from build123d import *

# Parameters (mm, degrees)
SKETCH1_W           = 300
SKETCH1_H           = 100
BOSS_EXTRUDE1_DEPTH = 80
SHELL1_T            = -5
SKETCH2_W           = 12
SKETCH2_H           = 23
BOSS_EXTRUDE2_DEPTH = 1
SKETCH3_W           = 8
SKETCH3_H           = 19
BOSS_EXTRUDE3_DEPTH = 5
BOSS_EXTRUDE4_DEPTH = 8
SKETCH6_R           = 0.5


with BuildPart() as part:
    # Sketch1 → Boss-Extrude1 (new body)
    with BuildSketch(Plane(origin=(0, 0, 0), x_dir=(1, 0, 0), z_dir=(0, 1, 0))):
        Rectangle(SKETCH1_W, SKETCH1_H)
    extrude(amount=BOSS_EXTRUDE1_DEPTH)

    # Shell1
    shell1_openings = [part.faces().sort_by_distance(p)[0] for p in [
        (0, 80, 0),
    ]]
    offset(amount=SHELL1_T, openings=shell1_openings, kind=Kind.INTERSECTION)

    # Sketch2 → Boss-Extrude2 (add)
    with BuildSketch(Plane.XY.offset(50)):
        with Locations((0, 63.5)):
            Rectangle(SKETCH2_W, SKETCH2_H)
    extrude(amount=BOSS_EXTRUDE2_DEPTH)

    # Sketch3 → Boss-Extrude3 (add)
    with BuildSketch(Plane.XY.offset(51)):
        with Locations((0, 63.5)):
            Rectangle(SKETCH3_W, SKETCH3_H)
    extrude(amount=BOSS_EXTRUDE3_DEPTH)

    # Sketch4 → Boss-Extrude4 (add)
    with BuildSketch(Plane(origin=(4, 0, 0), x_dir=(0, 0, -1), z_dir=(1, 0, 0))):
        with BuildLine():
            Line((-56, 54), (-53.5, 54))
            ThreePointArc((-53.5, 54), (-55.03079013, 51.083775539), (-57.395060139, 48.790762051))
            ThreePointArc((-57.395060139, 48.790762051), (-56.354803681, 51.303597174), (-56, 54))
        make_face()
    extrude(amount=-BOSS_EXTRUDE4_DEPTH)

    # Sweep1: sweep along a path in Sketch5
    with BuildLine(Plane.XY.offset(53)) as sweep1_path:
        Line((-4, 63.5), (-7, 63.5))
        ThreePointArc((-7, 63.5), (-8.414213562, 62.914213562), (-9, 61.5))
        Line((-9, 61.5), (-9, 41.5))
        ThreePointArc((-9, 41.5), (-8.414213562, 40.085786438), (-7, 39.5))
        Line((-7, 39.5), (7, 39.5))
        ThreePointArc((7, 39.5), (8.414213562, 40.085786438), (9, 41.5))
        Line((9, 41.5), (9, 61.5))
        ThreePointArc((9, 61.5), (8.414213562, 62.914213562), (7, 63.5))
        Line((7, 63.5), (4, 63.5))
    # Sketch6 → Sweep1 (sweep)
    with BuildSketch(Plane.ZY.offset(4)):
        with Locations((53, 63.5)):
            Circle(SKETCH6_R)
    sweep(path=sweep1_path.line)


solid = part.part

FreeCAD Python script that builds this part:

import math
import FreeCAD as App
import Part
import Sketcher
from FreeCAD import Vector
Q = App.Units.Quantity


def faces_at(feature, points):
    """Names of the faces that lie closest to the given points."""
    faces = feature.Shape.Faces
    near = lambda p: min(range(len(faces)), key=lambda i: faces[i].distToShape(Part.Vertex(*p))[0])
    return sorted({f"Face{near(p) + 1}" for p in points})

doc = App.newDocument("Part")
params = doc.addObject("Spreadsheet::Sheet", "Params")
for row, (alias, value) in enumerate([
    ("sketch1_width", "300 mm"),
    ("sketch1_height", "100 mm"),
    ("pad1_length", "80 mm"),
    ("thickness_wall", "5 mm"),
    ("sketch2_width", "12 mm"),
    ("sketch2_height", "23 mm"),
    ("pad2_length", "1 mm"),
    ("sketch3_width", "8 mm"),
    ("sketch3_height", "19 mm"),
    ("pad3_length", "5 mm"),
    ("sketch4_height", "2.5 mm"),
    ("pad4_length", "8 mm"),
    ("sketch5_diameter", "1 mm"),
    ("sketch6_radius", "2 mm"),
    ("sketch6_width", "3 mm"),
    ("sketch6_width2", "14 mm"),
    ("sketch6_height", "20 mm"),
], start=1):
    params.set(f"A{row}", alias)
    params.set(f"B{row}", "=" + value)
    params.setAlias(f"B{row}", alias)

body = doc.addObject("PartDesign::Body", "Body")

# Sketch on XZ plane
sketch1 = body.newObject("Sketcher::SketchObject", "Sketch")
sketch1.AttachmentSupport = (doc.getObject("XZ_Plane"), [""])
sketch1.MapMode = "FlatFace"
sketch1.addGeometry([
    Part.LineSegment(Vector(-150, -50, 0), Vector(-150, 50, 0)),
    Part.LineSegment(Vector(-150, 50, 0), Vector(150, 50, 0)),
    Part.LineSegment(Vector(150, 50, 0), Vector(150, -50, 0)),
    Part.LineSegment(Vector(150, -50, 0), Vector(-150, -50, 0)),
], False)
sketch1.addConstraint([
    Sketcher.Constraint("Coincident", 0, 2, 1, 1),
    Sketcher.Constraint("Coincident", 1, 2, 2, 1),
    Sketcher.Constraint("Coincident", 2, 2, 3, 1),
    Sketcher.Constraint("Coincident", 3, 2, 0, 1),
    Sketcher.Constraint("Vertical", 0),
    Sketcher.Constraint("Horizontal", 1),
    Sketcher.Constraint("Vertical", 2),
    Sketcher.Constraint("Horizontal", 3),
    Sketcher.Constraint("Symmetric", 0, 2, 2, 2, -1, 1),
    Sketcher.Constraint("DistanceX", 1, 1, 1, 2, Q("300 mm")),
    Sketcher.Constraint("DistanceY", 0, 1, 0, 2, Q("100 mm")),
])
sketch1.setExpression("Constraints[9]", "Params.sketch1_width")
sketch1.setExpression("Constraints[10]", "Params.sketch1_height")
pad1 = body.newObject("PartDesign::Pad", "Pad")
pad1.Profile = sketch1
pad1.setExpression("Length", "Params.pad1_length")
pad1.Reversed = True
doc.recompute()

thickness = body.newObject("PartDesign::Thickness", "Thickness")
thickness.Base = (pad1, faces_at(pad1, [(0, 80, 0)]))
thickness.setExpression("Value", "Params.thickness_wall")
thickness.Reversed = True
thickness.Join = "Intersection"

# Sketch on XY plane
sketch2 = body.newObject("Sketcher::SketchObject", "Sketch001")
sketch2.AttachmentSupport = (doc.getObject("XY_Plane"), [""])
sketch2.MapMode = "FlatFace"
sketch2.AttachmentOffset = App.Placement(Vector(0, 0, 50), App.Rotation())
sketch2.addGeometry([
    Part.LineSegment(Vector(-6, 75, 0), Vector(-6, 52, 0)),
    Part.LineSegment(Vector(-6, 52, 0), Vector(6, 52, 0)),
    Part.LineSegment(Vector(6, 52, 0), Vector(6, 75, 0)),
    Part.LineSegment(Vector(6, 75, 0), Vector(-6, 75, 0)),
], False)
sketch2.addConstraint([
    Sketcher.Constraint("Coincident", 0, 2, 1, 1),
    Sketcher.Constraint("Coincident", 1, 2, 2, 1),
    Sketcher.Constraint("Coincident", 2, 2, 3, 1),
    Sketcher.Constraint("Coincident", 3, 2, 0, 1),
    Sketcher.Constraint("Vertical", 0),
    Sketcher.Constraint("Horizontal", 1),
    Sketcher.Constraint("Vertical", 2),
    Sketcher.Constraint("Horizontal", 3),
    Sketcher.Constraint("DistanceX", 1, 1, 1, 2, Q("12 mm")),
    Sketcher.Constraint("DistanceY", 0, 2, 0, 1, Q("23 mm")),
    Sketcher.Constraint("DistanceX", 0, 2, -1, 1, Q("6 mm")),
    Sketcher.Constraint("DistanceY", -1, 1, 0, 2, Q("52 mm")),
])
sketch2.setExpression("Constraints[8]", "Params.sketch2_width")
sketch2.setExpression("Constraints[9]", "Params.sketch2_height")
pad2 = body.newObject("PartDesign::Pad", "Pad001")
pad2.Profile = sketch2
pad2.setExpression("Length", "Params.pad2_length")

# Sketch on XY plane
sketch3 = body.newObject("Sketcher::SketchObject", "Sketch002")
sketch3.AttachmentSupport = (doc.getObject("XY_Plane"), [""])
sketch3.MapMode = "FlatFace"
sketch3.AttachmentOffset = App.Placement(Vector(0, 0, 51), App.Rotation())
sketch3.addGeometry([
    Part.LineSegment(Vector(-4, 73, 0), Vector(-4, 54, 0)),
    Part.LineSegment(Vector(-4, 54, 0), Vector(4, 54, 0)),
    Part.LineSegment(Vector(4, 54, 0), Vector(4, 73, 0)),
    Part.LineSegment(Vector(4, 73, 0), Vector(-4, 73, 0)),
], False)
sketch3.addConstraint([
    Sketcher.Constraint("Coincident", 0, 2, 1, 1),
    Sketcher.Constraint("Coincident", 1, 2, 2, 1),
    Sketcher.Constraint("Coincident", 2, 2, 3, 1),
    Sketcher.Constraint("Coincident", 3, 2, 0, 1),
    Sketcher.Constraint("Vertical", 0),
    Sketcher.Constraint("Horizontal", 1),
    Sketcher.Constraint("Vertical", 2),
    Sketcher.Constraint("Horizontal", 3),
    Sketcher.Constraint("DistanceX", 1, 1, 1, 2, Q("8 mm")),
    Sketcher.Constraint("DistanceY", 0, 2, 0, 1, Q("19 mm")),
    Sketcher.Constraint("DistanceX", 0, 2, -1, 1, Q("4 mm")),
    Sketcher.Constraint("DistanceY", -1, 1, 0, 2, Q("54 mm")),
])
sketch3.setExpression("Constraints[8]", "Params.sketch3_width")
sketch3.setExpression("Constraints[9]", "Params.sketch3_height")
pad3 = body.newObject("PartDesign::Pad", "Pad002")
pad3.Profile = sketch3
pad3.setExpression("Length", "Params.pad3_length")

# Sketch on YZ plane
sketch4 = body.newObject("Sketcher::SketchObject", "Sketch003")
sketch4.AttachmentSupport = (doc.getObject("YZ_Plane"), [""])
sketch4.MapMode = "FlatFace"
sketch4.AttachmentOffset = App.Placement(Vector(0, 0, 4), App.Rotation())
sketch4.addGeometry([
    Part.LineSegment(Vector(54, 53.5, 0), Vector(54, 56, 0)),
    Part.ArcOfCircle(Part.Circle(Vector(54, 66.4, 0), Vector(0, 0, 1), 10.4), math.radians(-120), math.radians(-90)),
    Part.ArcOfCircle(Part.Circle(Vector(57.3, 63.4, 0), Vector(0, 0, 1), 10.4), math.radians(-145), math.radians(-109)),
], False)
sketch4.addConstraint([
    Sketcher.Constraint("Coincident", 0, 2, 1, 2),
    Sketcher.Constraint("Coincident", 1, 1, 2, 1),
    Sketcher.Constraint("Coincident", 2, 2, 0, 1),
    Sketcher.Constraint("Vertical", 0),
    Sketcher.Constraint("Equal", 1, 2),
    Sketcher.Constraint("Vertical", 1, 3, 0, 2),
    Sketcher.Constraint("DistanceY", 0, 1, 0, 2, Q("2.5 mm")),
    Sketcher.Constraint("DistanceX", -1, 1, 1, 3, Q("54 mm")),
    Sketcher.Constraint("DistanceY", -1, 1, 0, 2, Q("56 mm")),
    Sketcher.Constraint("Radius", 1, Q("10.423333 mm")),
    Sketcher.Constraint("DistanceY", -1, 1, 1, 1, Q("57.39506 mm")),
])
sketch4.setExpression("Constraints[6]", "Params.sketch4_height")
pad4 = body.newObject("PartDesign::Pad", "Pad003")
pad4.Profile = sketch4
pad4.setExpression("Length", "Params.pad4_length")
pad4.Reversed = True

# Sketch on YZ plane
sketch5 = body.newObject("Sketcher::SketchObject", "Sketch004")
sketch5.AttachmentSupport = (doc.getObject("YZ_Plane"), [""])
sketch5.MapMode = "FlatFace"
sketch5.AttachmentOffset = App.Placement(Vector(0, 0, -4), App.Rotation())
sketch5.addGeometry(Part.Circle(Vector(63.5, 53, 0), Vector(0, 0, 1), 0.5), False)
sketch5.addConstraint([
    Sketcher.Constraint("Diameter", 0, Q("1 mm")),
    Sketcher.Constraint("DistanceY", -1, 1, 0, 3, Q("53 mm")),
    Sketcher.Constraint("DistanceX", -1, 1, 0, 3, Q("63.5 mm")),
])
sketch5.setExpression("Constraints[0]", "Params.sketch5_diameter")

# Sketch on XY plane
sketch6 = body.newObject("Sketcher::SketchObject", "Sketch005")
sketch6.AttachmentSupport = (doc.getObject("XY_Plane"), [""])
sketch6.MapMode = "FlatFace"
sketch6.AttachmentOffset = App.Placement(Vector(0, 0, 53), App.Rotation())
sketch6.addGeometry([
    Part.LineSegment(Vector(-4, 63.5, 0), Vector(-7, 63.5, 0)),  # 0
    Part.ArcOfCircle(Part.Circle(Vector(-7, 61.5, 0), Vector(0, 0, 1), 2), math.radians(90), math.radians(180)),  # 1
    Part.LineSegment(Vector(-9, 61.5, 0), Vector(-9, 41.5, 0)),  # 2
    Part.ArcOfCircle(Part.Circle(Vector(-7, 41.5, 0), Vector(0, 0, 1), 2), math.radians(-180), math.radians(-90)),  # 3
    Part.LineSegment(Vector(-7, 39.5, 0), Vector(7, 39.5, 0)),  # 4
    Part.ArcOfCircle(Part.Circle(Vector(7, 41.5, 0), Vector(0, 0, 1), 2), math.radians(-90), math.radians(0)),  # 5
    Part.LineSegment(Vector(9, 41.5, 0), Vector(9, 61.5, 0)),  # 6
    Part.ArcOfCircle(Part.Circle(Vector(7, 61.5, 0), Vector(0, 0, 1), 2), math.radians(0), math.radians(90)),  # 7
    Part.LineSegment(Vector(7, 63.5, 0), Vector(4, 63.5, 0)),  # 8
], False)
sketch6.addConstraint([
    Sketcher.Constraint("Tangent", 0, 2, 1, 1),
    Sketcher.Constraint("Tangent", 1, 2, 2, 1),
    Sketcher.Constraint("Tangent", 2, 2, 3, 1),
    Sketcher.Constraint("Tangent", 3, 2, 4, 1),
    Sketcher.Constraint("Tangent", 4, 2, 5, 1),
    Sketcher.Constraint("Tangent", 5, 2, 6, 1),
    Sketcher.Constraint("Tangent", 6, 2, 7, 1),
    Sketcher.Constraint("Tangent", 7, 2, 8, 1),
    Sketcher.Constraint("Horizontal", 0),
    Sketcher.Constraint("Vertical", 2),
    Sketcher.Constraint("Horizontal", 4),
    Sketcher.Constraint("Vertical", 6),
    Sketcher.Constraint("Horizontal", 8),
    Sketcher.Constraint("Equal", 1, 3),
    Sketcher.Constraint("Equal", 3, 5),
    Sketcher.Constraint("Equal", 5, 7),
    Sketcher.Constraint("Symmetric", 1, 3, 7, 3, -2),
    Sketcher.Constraint("Equal", 0, 8),
    Sketcher.Constraint("Radius", 1, Q("2 mm")),
    Sketcher.Constraint("DistanceX", 0, 2, 0, 1, Q("3 mm")),
    Sketcher.Constraint("DistanceX", 4, 1, 4, 2, Q("14 mm")),
    Sketcher.Constraint("DistanceY", 2, 2, 2, 1, Q("20 mm")),
    Sketcher.Constraint("DistanceY", -1, 1, 1, 3, Q("61.5 mm")),
])
sketch6.setExpression("Constraints[18]", "Params.sketch6_radius")
sketch6.setExpression("Constraints[19]", "Params.sketch6_width")
sketch6.setExpression("Constraints[20]", "Params.sketch6_width2")
sketch6.setExpression("Constraints[21]", "Params.sketch6_height")
doc.recompute()

additivepipe = body.newObject("PartDesign::AdditivePipe", "AdditivePipe")
additivepipe.Profile = sketch5
additivepipe.Spine = (sketch6, ["Edge1", "Edge2", "Edge3", "Edge4", "Edge5", "Edge6", "Edge7", "Edge8", "Edge9"])

doc.recompute()
